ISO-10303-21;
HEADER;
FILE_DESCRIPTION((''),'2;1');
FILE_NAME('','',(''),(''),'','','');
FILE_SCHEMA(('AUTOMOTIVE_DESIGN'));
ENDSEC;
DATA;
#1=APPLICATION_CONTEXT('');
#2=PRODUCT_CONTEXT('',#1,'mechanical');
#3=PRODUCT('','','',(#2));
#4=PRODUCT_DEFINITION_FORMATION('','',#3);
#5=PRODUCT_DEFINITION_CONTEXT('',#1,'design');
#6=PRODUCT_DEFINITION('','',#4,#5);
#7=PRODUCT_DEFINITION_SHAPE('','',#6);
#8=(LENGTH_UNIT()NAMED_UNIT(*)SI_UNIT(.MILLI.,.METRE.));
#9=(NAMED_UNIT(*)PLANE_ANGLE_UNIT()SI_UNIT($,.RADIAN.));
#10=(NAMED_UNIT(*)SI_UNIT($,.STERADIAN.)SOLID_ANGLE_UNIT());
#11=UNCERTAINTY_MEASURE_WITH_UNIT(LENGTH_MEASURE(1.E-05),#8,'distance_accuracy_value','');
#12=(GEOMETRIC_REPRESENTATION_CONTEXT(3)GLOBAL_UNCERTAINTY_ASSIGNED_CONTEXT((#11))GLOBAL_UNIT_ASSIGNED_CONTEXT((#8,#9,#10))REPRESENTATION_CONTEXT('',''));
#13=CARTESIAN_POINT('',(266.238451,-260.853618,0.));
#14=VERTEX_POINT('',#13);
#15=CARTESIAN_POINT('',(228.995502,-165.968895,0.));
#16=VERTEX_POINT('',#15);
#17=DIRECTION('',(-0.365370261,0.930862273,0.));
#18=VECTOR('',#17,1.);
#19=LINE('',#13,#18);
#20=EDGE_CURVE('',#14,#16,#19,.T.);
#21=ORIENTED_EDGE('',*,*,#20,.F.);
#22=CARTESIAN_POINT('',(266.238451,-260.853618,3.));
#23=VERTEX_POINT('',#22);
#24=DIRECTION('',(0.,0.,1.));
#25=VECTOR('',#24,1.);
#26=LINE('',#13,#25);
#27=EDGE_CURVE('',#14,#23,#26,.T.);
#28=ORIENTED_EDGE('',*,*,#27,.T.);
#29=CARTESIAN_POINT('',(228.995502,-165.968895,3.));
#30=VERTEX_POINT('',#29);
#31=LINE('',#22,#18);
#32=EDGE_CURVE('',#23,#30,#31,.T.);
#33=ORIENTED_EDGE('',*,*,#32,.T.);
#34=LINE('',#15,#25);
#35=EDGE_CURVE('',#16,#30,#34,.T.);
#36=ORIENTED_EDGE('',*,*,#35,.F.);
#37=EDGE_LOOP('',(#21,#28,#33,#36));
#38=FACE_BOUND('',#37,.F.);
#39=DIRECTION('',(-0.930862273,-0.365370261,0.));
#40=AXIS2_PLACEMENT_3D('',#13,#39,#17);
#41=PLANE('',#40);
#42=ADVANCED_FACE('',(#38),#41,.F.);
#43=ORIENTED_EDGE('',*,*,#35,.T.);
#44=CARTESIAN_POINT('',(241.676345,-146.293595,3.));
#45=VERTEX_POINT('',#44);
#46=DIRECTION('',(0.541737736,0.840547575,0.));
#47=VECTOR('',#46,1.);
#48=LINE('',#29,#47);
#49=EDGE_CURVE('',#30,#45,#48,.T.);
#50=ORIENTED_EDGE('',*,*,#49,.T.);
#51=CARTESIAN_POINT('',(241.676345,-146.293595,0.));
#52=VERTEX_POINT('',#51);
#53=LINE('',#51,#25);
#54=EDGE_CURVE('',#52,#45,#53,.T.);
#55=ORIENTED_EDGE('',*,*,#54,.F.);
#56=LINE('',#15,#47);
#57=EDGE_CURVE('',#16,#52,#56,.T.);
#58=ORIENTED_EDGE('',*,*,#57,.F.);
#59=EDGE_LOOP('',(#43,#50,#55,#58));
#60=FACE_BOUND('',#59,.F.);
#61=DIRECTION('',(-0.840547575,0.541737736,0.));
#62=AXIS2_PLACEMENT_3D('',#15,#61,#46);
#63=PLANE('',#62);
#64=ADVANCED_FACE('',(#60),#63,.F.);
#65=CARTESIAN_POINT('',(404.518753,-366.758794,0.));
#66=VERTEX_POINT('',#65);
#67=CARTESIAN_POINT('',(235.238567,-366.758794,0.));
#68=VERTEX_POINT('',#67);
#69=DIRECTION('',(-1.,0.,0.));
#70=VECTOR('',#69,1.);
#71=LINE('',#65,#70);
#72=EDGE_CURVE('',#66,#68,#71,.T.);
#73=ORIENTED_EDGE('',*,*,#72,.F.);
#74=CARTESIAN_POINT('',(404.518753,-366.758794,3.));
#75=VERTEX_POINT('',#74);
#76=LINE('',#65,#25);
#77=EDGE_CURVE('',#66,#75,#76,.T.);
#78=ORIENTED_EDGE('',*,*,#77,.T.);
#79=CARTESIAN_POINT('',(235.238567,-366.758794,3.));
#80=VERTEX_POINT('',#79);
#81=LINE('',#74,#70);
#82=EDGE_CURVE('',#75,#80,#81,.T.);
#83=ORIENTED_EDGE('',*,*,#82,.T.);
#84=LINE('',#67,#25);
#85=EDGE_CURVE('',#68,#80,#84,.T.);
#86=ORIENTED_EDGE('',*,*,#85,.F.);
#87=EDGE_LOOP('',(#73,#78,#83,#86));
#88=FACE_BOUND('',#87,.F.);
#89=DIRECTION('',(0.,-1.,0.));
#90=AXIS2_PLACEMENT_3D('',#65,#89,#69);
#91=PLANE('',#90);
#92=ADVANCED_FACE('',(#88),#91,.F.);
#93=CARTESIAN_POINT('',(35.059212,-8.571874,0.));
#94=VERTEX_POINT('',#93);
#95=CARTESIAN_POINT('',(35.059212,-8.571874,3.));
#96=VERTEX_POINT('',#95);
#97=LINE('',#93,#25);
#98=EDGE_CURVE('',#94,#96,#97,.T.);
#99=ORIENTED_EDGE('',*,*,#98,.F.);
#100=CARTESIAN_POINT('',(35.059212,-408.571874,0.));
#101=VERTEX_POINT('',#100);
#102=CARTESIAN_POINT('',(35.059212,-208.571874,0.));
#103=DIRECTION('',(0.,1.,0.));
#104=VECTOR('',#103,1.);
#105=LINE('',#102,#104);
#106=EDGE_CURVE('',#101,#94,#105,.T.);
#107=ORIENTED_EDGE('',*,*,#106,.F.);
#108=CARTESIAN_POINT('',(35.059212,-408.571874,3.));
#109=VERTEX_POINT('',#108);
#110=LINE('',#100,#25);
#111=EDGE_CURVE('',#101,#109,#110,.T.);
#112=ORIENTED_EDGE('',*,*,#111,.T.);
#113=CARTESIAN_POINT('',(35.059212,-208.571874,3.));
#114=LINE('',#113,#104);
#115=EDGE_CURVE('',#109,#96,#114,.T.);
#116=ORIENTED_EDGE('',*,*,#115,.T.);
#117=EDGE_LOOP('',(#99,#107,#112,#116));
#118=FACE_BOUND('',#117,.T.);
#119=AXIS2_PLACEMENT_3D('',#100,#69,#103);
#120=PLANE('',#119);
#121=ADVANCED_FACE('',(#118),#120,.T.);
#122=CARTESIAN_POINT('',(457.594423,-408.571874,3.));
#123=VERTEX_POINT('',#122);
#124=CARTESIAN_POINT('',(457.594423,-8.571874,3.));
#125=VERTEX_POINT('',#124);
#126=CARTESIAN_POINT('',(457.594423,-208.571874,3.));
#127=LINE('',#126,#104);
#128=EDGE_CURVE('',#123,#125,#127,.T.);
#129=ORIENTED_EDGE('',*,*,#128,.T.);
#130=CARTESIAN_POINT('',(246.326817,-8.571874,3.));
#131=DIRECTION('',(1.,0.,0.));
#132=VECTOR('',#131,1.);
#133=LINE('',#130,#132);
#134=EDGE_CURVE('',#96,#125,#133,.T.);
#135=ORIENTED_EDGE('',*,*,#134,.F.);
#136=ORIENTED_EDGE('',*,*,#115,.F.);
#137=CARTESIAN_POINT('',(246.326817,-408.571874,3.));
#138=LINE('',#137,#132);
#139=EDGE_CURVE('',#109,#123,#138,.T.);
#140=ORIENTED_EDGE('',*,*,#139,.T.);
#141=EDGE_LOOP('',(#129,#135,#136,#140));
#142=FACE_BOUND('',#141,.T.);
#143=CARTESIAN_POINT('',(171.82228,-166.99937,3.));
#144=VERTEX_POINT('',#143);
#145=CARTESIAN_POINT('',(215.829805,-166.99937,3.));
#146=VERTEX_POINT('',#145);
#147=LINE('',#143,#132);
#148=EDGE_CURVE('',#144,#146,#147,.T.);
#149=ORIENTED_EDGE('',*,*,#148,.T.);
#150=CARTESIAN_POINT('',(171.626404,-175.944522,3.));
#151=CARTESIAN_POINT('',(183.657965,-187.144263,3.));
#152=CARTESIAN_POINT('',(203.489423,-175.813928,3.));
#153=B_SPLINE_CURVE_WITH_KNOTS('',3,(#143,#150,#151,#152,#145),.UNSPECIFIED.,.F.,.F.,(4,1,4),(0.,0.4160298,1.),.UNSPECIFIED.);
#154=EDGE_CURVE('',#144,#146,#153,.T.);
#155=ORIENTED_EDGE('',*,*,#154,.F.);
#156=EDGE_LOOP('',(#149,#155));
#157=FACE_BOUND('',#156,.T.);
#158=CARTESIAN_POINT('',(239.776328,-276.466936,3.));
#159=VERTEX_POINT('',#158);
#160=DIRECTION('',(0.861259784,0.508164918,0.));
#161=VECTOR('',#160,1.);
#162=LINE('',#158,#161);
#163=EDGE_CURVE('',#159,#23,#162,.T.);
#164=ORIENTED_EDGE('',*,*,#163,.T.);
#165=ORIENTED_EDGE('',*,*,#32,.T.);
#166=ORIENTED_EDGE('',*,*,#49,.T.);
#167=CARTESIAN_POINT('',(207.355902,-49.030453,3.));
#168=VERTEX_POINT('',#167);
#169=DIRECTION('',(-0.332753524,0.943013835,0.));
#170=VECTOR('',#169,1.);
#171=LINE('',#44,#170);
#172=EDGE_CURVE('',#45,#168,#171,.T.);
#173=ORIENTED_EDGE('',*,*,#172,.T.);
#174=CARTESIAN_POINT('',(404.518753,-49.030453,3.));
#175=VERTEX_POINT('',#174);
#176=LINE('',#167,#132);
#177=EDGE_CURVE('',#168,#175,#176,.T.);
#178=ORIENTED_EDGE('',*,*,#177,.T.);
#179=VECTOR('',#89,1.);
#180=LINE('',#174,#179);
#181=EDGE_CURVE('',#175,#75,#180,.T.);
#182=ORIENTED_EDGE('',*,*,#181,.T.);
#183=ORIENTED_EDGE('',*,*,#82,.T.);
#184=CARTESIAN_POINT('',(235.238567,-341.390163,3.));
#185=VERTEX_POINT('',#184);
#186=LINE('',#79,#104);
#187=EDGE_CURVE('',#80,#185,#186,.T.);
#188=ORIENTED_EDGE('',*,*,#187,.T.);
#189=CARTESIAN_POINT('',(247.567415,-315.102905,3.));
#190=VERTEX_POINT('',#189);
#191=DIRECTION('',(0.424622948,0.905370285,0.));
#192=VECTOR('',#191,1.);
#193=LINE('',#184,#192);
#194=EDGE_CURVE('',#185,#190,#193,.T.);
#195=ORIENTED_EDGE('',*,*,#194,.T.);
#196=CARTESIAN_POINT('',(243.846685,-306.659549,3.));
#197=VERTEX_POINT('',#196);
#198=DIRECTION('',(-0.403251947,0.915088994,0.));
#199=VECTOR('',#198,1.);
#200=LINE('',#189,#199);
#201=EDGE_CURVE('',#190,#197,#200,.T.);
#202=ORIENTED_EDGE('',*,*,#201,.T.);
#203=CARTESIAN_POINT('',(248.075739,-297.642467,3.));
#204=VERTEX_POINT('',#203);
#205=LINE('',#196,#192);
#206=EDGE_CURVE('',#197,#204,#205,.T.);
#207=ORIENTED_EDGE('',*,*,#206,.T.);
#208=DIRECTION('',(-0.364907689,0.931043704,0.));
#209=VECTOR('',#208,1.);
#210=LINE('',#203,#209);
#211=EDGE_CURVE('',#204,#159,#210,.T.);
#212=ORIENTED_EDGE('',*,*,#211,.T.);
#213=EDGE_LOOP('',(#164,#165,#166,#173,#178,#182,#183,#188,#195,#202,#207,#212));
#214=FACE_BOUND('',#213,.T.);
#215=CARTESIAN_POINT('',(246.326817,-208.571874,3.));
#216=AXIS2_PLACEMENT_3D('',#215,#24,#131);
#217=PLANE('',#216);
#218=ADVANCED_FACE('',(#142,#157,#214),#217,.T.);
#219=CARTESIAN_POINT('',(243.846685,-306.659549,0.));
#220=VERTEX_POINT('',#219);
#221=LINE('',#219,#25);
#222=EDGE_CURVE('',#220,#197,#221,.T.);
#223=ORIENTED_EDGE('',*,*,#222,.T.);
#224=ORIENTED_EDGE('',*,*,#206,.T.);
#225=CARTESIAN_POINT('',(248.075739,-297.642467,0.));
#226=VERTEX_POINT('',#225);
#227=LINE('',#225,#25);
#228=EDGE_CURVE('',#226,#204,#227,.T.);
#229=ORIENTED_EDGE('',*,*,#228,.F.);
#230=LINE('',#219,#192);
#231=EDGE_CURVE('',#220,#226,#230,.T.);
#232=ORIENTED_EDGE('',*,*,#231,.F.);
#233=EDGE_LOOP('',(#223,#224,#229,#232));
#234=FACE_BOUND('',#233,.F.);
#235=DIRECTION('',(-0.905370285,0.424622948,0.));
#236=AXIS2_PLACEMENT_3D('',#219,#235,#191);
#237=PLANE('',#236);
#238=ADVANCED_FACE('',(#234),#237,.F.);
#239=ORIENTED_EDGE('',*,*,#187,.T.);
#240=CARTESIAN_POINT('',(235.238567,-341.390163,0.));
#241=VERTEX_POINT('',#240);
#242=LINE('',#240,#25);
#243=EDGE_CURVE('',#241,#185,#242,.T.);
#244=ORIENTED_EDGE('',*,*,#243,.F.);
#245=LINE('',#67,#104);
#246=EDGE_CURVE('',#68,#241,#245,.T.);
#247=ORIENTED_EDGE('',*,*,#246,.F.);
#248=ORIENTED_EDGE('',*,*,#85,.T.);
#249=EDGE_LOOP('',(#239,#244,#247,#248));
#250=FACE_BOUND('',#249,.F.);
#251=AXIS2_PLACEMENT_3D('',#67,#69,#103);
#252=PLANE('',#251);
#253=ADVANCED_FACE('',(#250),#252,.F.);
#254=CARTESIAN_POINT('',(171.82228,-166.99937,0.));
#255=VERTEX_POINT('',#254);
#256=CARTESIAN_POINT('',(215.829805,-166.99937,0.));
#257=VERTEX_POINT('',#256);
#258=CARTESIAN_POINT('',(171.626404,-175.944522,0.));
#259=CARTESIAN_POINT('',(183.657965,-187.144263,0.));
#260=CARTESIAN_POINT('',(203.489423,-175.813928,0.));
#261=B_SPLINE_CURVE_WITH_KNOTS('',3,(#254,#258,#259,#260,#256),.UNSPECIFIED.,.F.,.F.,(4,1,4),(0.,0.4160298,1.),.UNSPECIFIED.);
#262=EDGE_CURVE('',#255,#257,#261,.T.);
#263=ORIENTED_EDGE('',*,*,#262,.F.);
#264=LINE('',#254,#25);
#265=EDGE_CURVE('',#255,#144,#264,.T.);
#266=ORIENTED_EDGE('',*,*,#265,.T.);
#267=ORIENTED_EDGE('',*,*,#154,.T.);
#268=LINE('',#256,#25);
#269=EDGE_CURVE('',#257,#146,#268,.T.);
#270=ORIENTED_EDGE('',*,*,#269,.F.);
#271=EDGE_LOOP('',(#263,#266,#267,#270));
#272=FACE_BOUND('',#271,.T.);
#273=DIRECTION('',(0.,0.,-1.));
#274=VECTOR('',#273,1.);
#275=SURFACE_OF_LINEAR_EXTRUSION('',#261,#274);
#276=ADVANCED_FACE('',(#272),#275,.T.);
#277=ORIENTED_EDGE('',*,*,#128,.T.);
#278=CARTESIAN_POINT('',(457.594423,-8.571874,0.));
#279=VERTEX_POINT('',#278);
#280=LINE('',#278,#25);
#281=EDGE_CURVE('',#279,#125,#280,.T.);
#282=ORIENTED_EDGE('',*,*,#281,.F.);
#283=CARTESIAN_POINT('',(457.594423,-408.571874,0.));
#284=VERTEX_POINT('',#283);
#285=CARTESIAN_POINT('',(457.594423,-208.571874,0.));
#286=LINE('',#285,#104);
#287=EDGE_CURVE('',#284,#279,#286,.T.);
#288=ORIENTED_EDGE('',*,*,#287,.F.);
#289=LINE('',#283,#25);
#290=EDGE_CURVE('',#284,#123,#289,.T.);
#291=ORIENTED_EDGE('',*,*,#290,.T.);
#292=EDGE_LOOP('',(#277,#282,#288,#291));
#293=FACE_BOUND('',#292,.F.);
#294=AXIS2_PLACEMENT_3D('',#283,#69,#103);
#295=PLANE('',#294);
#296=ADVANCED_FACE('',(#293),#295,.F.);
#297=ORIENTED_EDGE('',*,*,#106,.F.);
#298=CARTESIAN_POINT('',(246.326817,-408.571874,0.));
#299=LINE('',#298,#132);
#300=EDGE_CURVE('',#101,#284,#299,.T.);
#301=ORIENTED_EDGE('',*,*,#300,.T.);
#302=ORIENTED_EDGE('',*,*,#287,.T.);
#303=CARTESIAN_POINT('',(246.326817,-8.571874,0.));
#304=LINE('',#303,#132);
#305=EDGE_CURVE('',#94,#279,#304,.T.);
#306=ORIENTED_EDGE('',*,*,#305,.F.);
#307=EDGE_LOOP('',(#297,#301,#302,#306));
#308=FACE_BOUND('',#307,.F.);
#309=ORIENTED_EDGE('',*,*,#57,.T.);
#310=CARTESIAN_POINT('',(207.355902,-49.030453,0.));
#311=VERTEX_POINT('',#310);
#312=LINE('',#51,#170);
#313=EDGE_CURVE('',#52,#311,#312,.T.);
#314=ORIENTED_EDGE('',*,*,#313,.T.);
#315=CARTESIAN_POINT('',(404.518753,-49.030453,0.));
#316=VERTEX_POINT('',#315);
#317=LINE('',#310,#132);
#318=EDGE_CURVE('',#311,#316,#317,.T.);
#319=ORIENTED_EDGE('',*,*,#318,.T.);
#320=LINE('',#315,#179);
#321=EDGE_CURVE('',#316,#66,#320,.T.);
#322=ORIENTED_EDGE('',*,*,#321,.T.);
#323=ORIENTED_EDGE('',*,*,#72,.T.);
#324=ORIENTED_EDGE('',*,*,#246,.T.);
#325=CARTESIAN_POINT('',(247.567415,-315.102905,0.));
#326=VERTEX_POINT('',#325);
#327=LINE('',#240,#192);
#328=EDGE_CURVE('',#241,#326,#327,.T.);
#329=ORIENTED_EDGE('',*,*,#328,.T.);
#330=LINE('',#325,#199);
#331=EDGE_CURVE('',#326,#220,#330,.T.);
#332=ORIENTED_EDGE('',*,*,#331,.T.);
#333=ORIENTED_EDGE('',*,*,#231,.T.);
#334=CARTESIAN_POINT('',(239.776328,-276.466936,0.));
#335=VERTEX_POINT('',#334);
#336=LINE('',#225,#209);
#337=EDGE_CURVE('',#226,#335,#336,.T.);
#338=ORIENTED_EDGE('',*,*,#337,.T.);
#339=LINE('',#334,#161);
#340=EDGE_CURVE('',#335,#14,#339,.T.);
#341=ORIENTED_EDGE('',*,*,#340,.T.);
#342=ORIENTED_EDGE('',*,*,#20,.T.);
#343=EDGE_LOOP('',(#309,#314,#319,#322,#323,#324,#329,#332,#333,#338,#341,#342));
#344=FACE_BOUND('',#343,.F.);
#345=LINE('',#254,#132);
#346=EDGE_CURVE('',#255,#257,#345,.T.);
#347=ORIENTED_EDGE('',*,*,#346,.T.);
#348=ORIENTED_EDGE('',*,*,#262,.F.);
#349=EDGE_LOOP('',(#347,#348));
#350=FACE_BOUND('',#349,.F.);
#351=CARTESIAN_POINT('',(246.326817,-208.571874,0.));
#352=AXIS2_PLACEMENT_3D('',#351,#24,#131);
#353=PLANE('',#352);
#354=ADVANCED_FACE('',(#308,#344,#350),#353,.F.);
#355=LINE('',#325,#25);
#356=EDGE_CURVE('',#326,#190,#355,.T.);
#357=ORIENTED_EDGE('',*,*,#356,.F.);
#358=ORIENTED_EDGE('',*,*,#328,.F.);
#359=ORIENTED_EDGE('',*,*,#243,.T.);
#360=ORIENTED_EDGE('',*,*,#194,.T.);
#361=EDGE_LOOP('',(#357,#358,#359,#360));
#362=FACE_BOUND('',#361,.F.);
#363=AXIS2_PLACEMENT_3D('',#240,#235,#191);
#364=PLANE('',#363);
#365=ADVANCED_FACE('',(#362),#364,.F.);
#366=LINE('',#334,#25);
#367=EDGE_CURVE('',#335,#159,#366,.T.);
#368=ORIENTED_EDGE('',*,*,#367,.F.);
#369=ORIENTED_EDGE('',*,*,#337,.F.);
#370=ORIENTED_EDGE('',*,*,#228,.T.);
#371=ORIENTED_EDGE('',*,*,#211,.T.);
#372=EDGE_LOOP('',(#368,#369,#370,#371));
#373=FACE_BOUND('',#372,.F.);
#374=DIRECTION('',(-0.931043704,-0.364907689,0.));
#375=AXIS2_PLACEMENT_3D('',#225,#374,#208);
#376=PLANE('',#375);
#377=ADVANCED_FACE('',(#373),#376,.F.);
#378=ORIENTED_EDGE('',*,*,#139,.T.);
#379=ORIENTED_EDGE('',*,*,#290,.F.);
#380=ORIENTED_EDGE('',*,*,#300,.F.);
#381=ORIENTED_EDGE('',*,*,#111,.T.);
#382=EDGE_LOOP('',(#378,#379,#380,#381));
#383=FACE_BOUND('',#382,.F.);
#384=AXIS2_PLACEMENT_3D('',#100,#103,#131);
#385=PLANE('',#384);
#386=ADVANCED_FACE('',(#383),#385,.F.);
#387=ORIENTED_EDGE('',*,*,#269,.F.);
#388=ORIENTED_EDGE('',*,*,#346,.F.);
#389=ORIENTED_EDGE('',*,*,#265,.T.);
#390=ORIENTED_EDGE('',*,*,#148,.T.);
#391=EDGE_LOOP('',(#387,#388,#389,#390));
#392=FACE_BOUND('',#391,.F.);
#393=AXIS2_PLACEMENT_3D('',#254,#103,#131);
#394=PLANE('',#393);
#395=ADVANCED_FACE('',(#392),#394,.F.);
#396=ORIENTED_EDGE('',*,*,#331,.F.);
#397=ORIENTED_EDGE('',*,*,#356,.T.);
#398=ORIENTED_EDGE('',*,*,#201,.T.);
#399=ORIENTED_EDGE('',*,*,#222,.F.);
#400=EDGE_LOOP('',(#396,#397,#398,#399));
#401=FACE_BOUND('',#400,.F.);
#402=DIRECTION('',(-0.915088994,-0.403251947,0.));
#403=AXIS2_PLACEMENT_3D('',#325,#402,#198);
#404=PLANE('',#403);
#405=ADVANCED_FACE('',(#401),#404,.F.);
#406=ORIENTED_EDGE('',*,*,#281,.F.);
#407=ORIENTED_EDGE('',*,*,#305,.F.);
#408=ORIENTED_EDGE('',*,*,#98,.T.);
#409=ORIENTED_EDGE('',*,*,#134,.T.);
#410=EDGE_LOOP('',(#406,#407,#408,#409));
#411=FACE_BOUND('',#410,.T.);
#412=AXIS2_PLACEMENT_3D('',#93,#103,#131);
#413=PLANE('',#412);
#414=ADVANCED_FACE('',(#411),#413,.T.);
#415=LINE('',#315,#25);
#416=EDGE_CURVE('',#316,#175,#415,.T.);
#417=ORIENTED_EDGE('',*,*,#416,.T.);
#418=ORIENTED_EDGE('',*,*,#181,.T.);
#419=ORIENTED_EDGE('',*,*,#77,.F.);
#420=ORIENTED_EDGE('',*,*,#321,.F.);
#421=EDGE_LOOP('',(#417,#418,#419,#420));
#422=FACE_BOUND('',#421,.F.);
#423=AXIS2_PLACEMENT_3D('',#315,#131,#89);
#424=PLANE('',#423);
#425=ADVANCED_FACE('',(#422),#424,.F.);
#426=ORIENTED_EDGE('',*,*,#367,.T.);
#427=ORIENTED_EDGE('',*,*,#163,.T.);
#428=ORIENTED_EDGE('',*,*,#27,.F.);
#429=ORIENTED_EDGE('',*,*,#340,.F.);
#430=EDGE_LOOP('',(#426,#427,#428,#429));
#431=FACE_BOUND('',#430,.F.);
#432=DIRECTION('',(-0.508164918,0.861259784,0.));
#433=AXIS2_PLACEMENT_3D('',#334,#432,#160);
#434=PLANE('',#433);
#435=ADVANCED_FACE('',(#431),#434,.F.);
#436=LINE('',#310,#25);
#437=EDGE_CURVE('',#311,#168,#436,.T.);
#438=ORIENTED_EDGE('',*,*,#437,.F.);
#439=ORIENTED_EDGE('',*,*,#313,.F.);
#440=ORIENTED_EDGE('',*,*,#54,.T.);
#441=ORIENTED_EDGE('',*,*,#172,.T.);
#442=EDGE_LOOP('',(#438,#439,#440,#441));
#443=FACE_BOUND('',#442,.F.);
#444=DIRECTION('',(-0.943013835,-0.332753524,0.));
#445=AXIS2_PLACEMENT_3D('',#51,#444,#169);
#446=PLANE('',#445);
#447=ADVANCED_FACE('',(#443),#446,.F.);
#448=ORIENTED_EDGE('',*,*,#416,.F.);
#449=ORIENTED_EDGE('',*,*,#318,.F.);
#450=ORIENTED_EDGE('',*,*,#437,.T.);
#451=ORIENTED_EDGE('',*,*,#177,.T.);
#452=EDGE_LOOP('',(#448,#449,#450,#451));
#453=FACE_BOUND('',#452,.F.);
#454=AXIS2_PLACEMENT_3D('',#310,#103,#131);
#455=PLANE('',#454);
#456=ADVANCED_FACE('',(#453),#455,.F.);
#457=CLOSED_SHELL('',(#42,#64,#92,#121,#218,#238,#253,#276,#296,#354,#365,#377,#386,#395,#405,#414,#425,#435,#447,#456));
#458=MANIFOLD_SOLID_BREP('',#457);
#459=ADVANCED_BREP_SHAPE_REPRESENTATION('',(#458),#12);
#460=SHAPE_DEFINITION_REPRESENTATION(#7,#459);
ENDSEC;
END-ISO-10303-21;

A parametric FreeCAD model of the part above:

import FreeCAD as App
import Part
import Sketcher

doc = App.newDocument("Part")
body = doc.addObject("PartDesign::Body", "Body")

# Sketch on XY plane
sketch1 = body.newObject("Sketcher::SketchObject", "Sketch")
sketch1.AttachmentSupport = (doc.getObject("XY_Plane"), [""])
sketch1.MapMode = "FlatFace"
sketch1.addGeometry([
    Part.LineSegment(App.Vector(35.059212, -8.571874, 0), App.Vector(35.059212, -408.571874, 0)),  # 0
    Part.LineSegment(App.Vector(35.059212, -408.571874, 0), App.Vector(457.594423, -408.571874, 0)),  # 1
    Part.LineSegment(App.Vector(457.594423, -408.571874, 0), App.Vector(457.594423, -8.571874, 0)),  # 2
    Part.LineSegment(App.Vector(457.594423, -8.571874, 0), App.Vector(35.059212, -8.571874, 0)),  # 3
    Part.LineSegment(App.Vector(207.355902, -49.030453, 0), App.Vector(404.518753, -49.030453, 0)),  # 4
    Part.LineSegment(App.Vector(404.518753, -49.030453, 0), App.Vector(404.518753, -366.758794, 0)),  # 5
    Part.LineSegment(App.Vector(404.518753, -366.758794, 0), App.Vector(235.238567, -366.758794, 0)),  # 6
    Part.LineSegment(App.Vector(235.238567, -366.758794, 0), App.Vector(235.238567, -341.390163, 0)),  # 7
    Part.LineSegment(App.Vector(235.238567, -341.390163, 0), App.Vector(247.567415, -315.102905, 0)),  # 8
    Part.LineSegment(App.Vector(247.567415, -315.102905, 0), App.Vector(243.846685, -306.659549, 0)),  # 9
    Part.LineSegment(App.Vector(243.846685, -306.659549, 0), App.Vector(248.075739, -297.642467, 0)),  # 10
    Part.LineSegment(App.Vector(248.075739, -297.642467, 0), App.Vector(239.776328, -276.466936, 0)),  # 11
    Part.LineSegment(App.Vector(239.776328, -276.466936, 0), App.Vector(266.238451, -260.853618, 0)),  # 12
    Part.LineSegment(App.Vector(266.238451, -260.853618, 0), App.Vector(228.995502, -165.968895, 0)),  # 13
    Part.LineSegment(App.Vector(228.995502, -165.968895, 0), App.Vector(241.676345, -146.293595, 0)),  # 14
    Part.LineSegment(App.Vector(241.676345, -146.293595, 0), App.Vector(207.355902, -49.030453, 0)),  # 15
    Part.BSplineCurve([App.Vector(171.82228, -166.99937, 0), App.Vector(171.626404, -175.944522, 0), App.Vector(183.657965, -187.144263, 0), App.Vector(203.489423, -175.813928, 0), App.Vector(215.829805, -166.99937, 0)], [4, 1, 4], [0, 0.4160298, 1], False, 3, [1, 1, 1, 1, 1], False),  # 16
    Part.LineSegment(App.Vector(171.82228, -166.99937, 0), App.Vector(215.829805, -166.99937, 0)),  # 17
], False)
sketch1.addConstraint([
    Sketcher.Constraint("Block", 16),
    Sketcher.Constraint("Coincident", 0, 2, 1, 1),
    Sketcher.Constraint("Coincident", 1, 2, 2, 1),
    Sketcher.Constraint("Coincident", 2, 2, 3, 1),
    Sketcher.Constraint("Coincident", 3, 2, 0, 1),
    Sketcher.Constraint("Coincident", 4, 2, 5, 1),
    Sketcher.Constraint("Coincident", 5, 2, 6, 1),
    Sketcher.Constraint("Coincident", 6, 2, 7, 1),
    Sketcher.Constraint("Coincident", 7, 2, 8, 1),
    Sketcher.Constraint("Coincident", 8, 2, 9, 1),
    Sketcher.Constraint("Coincident", 9, 2, 10, 1),
    Sketcher.Constraint("Coincident", 10, 2, 11, 1),
    Sketcher.Constraint("Coincident", 11, 2, 12, 1),
    Sketcher.Constraint("Coincident", 12, 2, 13, 1),
    Sketcher.Constraint("Coincident", 13, 2, 14, 1),
    Sketcher.Constraint("Coincident", 14, 2, 15, 1),
    Sketcher.Constraint("Coincident", 15, 2, 4, 1),
    Sketcher.Constraint("Coincident", 16, 1, 17, 1),
    Sketcher.Constraint("Coincident", 17, 2, 16, 2),
    Sketcher.Constraint("Vertical", 0),
    Sketcher.Constraint("Horizontal", 1),
    Sketcher.Constraint("Vertical", 2),
    Sketcher.Constraint("Horizontal", 3),
    Sketcher.Constraint("Horizontal", 4),
    Sketcher.Constraint("Vertical", 5),
    Sketcher.Constraint("Horizontal", 6),
    Sketcher.Constraint("Vertical", 7),
    Sketcher.Constraint("Parallel", 8, 10),
    Sketcher.Constraint("DistanceY", 0, 2, 0, 1, 400.0),
    Sketcher.Constraint("DistanceX", 1, 1, 1, 2, 422.535211),
    Sketcher.Constraint("DistanceX", 4, 1, 4, 2, 197.162852),
    Sketcher.Constraint("DistanceY", 5, 2, 5, 1, 317.728341),
    Sketcher.Constraint("DistanceY", 7, 1, 7, 2, 25.368631),
    Sketcher.Constraint("DistanceX", -1, 1, 13, 2, 228.995502),
    Sketcher.Constraint("DistanceX", -1, 1, 15, 2, 207.355902),
    Sketcher.Constraint("DistanceY", 13, 2, 14, 2, 19.6753),
    Sketcher.Constraint("Distance", 10, 9.959552),
    Sketcher.Constraint("DistanceX", 6, 2, 6, 1, 169.280186),
    Sketcher.Constraint("DistanceX", -1, 1, 0, 2, 35.059212),
    Sketcher.Constraint("DistanceY", 9, 2, -1, 1, 306.659549),
    Sketcher.Constraint("DistanceX", -1, 1, 10, 2, 248.075739),
    Sketcher.Constraint("DistanceX", -1, 1, 11, 2, 239.776328),
    Sketcher.Constraint("DistanceX", -1, 1, 12, 2, 266.238451),
    Sketcher.Constraint("DistanceY", 12, 2, -1, 1, 260.853618),
    Sketcher.Constraint("DistanceY", 4, 2, 2, 2, 40.458579),
    Sketcher.Constraint("DistanceX", 7, 2, 8, 2, 12.328848),
    Sketcher.Constraint("DistanceY", 6, 2, 8, 2, 51.655889),
    Sketcher.Constraint("DistanceY", 10, 2, 11, 2, 21.175531),
    Sketcher.Constraint("DistanceY", 8, 2, 11, 2, 38.635969),
    Sketcher.Constraint("DistanceY", 11, 2, 13, 2, 110.498041),
    Sketcher.Constraint("DistanceX", 14, 2, 9, 2, 2.170339),
])
pad1 = body.newObject("PartDesign::Pad", "Pad")
pad1.Profile = sketch1
pad1.Length = 3

doc.recompute()
